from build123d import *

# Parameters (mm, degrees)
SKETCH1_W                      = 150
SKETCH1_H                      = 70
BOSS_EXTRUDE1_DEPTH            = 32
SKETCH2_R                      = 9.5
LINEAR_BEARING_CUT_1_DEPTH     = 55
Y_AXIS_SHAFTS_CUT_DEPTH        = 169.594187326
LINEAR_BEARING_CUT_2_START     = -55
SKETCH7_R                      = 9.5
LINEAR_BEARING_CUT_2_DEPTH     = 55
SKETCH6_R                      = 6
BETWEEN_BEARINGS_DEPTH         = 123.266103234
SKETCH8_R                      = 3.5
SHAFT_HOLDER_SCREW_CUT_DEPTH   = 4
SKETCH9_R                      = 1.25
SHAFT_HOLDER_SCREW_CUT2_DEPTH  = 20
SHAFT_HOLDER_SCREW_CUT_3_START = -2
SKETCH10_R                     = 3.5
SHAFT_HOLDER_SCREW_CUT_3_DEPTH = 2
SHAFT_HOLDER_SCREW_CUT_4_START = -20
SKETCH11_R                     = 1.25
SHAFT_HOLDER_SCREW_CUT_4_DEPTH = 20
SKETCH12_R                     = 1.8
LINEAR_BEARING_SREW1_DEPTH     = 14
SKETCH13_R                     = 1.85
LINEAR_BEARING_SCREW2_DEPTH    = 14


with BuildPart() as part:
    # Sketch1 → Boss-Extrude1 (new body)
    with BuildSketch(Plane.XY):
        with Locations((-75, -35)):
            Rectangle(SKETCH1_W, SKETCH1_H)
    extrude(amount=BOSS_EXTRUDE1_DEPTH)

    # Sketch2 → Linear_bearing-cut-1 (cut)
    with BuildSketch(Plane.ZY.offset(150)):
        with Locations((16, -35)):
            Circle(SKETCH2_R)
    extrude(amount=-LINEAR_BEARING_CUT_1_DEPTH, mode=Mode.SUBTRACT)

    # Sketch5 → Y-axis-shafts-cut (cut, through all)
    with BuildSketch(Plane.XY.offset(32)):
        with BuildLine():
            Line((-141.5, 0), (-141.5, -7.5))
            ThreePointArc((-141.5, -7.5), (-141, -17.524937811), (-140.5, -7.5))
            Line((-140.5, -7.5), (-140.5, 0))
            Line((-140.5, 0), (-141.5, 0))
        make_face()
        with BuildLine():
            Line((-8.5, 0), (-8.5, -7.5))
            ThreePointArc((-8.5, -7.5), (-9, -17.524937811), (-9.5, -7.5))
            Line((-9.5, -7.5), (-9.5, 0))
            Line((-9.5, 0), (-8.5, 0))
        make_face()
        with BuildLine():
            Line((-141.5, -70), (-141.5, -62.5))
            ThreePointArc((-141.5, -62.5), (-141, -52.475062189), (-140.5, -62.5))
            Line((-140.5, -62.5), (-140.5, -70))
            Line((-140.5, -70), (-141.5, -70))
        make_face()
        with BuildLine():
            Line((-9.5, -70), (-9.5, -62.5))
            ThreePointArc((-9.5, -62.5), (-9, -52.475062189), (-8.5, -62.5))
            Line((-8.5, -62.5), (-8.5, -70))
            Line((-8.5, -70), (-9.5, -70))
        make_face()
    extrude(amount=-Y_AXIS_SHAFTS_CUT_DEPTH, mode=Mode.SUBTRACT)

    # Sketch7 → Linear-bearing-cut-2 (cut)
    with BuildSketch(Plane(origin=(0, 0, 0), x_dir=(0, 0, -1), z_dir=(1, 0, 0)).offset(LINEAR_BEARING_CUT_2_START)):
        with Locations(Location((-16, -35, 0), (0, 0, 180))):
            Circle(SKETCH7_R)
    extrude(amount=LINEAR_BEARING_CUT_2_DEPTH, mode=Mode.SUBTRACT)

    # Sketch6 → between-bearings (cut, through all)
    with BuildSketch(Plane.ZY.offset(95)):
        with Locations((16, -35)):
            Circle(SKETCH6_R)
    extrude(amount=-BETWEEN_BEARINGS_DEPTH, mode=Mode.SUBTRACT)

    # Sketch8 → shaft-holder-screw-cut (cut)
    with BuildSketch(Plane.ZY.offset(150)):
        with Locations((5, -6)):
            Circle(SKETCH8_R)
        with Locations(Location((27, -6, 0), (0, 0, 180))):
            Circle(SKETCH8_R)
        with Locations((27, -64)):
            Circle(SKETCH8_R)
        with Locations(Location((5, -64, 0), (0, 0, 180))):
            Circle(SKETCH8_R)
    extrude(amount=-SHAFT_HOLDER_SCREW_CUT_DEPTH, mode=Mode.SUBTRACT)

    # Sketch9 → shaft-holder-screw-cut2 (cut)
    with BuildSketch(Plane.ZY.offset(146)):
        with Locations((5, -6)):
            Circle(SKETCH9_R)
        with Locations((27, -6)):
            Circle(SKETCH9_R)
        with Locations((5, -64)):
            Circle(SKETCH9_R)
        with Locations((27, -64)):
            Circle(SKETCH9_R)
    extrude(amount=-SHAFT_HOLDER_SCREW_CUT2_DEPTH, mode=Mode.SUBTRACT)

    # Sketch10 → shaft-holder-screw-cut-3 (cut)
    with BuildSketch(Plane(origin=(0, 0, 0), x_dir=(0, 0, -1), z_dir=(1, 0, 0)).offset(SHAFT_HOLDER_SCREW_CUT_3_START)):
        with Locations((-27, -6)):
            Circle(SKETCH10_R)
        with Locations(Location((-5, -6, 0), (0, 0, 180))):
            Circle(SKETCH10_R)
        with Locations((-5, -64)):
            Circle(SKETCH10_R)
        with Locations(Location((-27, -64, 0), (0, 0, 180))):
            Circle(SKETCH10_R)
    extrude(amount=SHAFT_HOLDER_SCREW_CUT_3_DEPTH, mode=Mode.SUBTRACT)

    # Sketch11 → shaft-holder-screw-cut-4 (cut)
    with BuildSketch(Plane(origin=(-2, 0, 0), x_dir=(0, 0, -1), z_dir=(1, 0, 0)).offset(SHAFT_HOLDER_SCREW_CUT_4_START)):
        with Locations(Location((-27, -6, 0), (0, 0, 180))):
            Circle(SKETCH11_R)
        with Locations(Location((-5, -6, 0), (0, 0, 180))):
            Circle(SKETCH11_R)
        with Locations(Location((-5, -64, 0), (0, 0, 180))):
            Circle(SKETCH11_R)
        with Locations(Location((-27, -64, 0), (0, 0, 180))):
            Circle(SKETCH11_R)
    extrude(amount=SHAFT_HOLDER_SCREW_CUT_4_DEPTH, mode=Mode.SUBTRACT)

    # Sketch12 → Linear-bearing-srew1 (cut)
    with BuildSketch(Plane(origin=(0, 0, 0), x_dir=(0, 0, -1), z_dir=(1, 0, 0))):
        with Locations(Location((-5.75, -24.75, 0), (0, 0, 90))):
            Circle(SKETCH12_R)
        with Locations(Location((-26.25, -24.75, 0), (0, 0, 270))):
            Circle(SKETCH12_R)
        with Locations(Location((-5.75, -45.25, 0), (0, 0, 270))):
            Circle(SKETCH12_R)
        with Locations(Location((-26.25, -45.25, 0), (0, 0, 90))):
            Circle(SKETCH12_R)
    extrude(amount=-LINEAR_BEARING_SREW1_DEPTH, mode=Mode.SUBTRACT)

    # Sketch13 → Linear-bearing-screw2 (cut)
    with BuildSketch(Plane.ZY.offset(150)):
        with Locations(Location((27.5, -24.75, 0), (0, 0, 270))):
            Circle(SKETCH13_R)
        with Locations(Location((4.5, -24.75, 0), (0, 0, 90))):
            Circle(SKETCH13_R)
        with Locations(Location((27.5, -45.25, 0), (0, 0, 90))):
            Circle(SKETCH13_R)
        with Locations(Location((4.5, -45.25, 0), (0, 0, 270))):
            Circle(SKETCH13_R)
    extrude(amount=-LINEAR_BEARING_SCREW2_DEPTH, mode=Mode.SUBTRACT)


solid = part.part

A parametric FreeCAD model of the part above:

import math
import FreeCAD as App
import Part
import Sketcher
Q = App.Units.Quantity

doc = App.newDocument("Part")
body = doc.addObject("PartDesign::Body", "Body")

# Sketch on XY plane
sketch1 = body.newObject("Sketcher::SketchObject", "Sketch")
sketch1.AttachmentSupport = (doc.getObject("XY_Plane"), [""])
sketch1.MapMode = "FlatFace"
sketch1.addGeometry([
    Part.LineSegment(App.Vector(-150, 0, 0), App.Vector(-150, -70, 0)),
    Part.LineSegment(App.Vector(-150, -70, 0), App.Vector(0, -70, 0)),
    Part.LineSegment(App.Vector(0, -70, 0), App.Vector(0, 0, 0)),
    Part.LineSegment(App.Vector(0, 0, 0), App.Vector(-150, 0, 0)),
], False)
sketch1.addConstraint([
    Sketcher.Constraint("Coincident", 0, 2, 1, 1),
    Sketcher.Constraint("Coincident", 1, 2, 2, 1),
    Sketcher.Constraint("Coincident", 2, 2, 3, 1),
    Sketcher.Constraint("Coincident", 3, 2, 0, 1),
    Sketcher.Constraint("Vertical", 0),
    Sketcher.Constraint("Horizontal", 1),
    Sketcher.Constraint("Vertical", 2),
    Sketcher.Constraint("Horizontal", 3),
    Sketcher.Constraint("Coincident", 2, 2, -1, 1),
    Sketcher.Constraint("DistanceX", 1, 1, 1, 2, Q("150 mm")),
    Sketcher.Constraint("DistanceY", 0, 2, 0, 1, Q("70 mm")),
])
pad1 = body.newObject("PartDesign::Pad", "Pad")
pad1.Profile = sketch1
pad1.Length = 32

# Sketch on YZ plane
sketch2 = body.newObject("Sketcher::SketchObject", "Sketch001")
sketch2.AttachmentSupport = (doc.getObject("YZ_Plane"), [""])
sketch2.MapMode = "FlatFace"
sketch2.AttachmentOffset = App.Placement(App.Vector(0, 0, -150), App.Rotation())
sketch2.addGeometry(Part.Circle(App.Vector(-35, 16, 0), App.Vector(0, 0, 1), 10), False)
sketch2.addConstraint([
    Sketcher.Constraint("Diameter", 0, Q("19 mm")),
    Sketcher.Constraint("DistanceX", 0, 3, -1, 1, Q("35 mm")),
    Sketcher.Constraint("DistanceY", -1, 1, 0, 3, Q("16 mm")),
])
pocket1 = body.newObject("PartDesign::Pocket", "Pocket")
pocket1.Profile = sketch2
pocket1.Length = 55
pocket1.Reversed = True

# Sketch on XY plane
sketch3 = body.newObject("Sketcher::SketchObject", "Sketch002")
sketch3.AttachmentSupport = (doc.getObject("XY_Plane"), [""])
sketch3.MapMode = "FlatFace"
sketch3.AttachmentOffset = App.Placement(App.Vector(0, 0, 32), App.Rotation())
sketch3.addGeometry([
    Part.LineSegment(App.Vector(-141.5, 0, 0), App.Vector(-141.5, -7.5, 0)),  # 0
    Part.ArcOfCircle(Part.Circle(App.Vector(-141, -12.5, 0), App.Vector(0, 0, 1), 5), math.radians(96), math.radians(444)),  # 1
    Part.LineSegment(App.Vector(-140.5, -7.5, 0), App.Vector(-140.5, 0, 0)),  # 2
    Part.LineSegment(App.Vector(-140.5, 0, 0), App.Vector(-141.5, 0, 0)),  # 3
    Part.LineSegment(App.Vector(-8.5, -7.5, 0), App.Vector(-8.5, 0, 0)),  # 4
    Part.LineSegment(App.Vector(-8.5, 0, 0), App.Vector(-9.5, 0, 0)),  # 5
    Part.LineSegment(App.Vector(-9.5, 0, 0), App.Vector(-9.5, -7.5, 0)),  # 6
    Part.ArcOfCircle(Part.Circle(App.Vector(-9, -12.5, 0), App.Vector(0, 0, 1), 5), math.radians(96), math.radians(444)),  # 7
    Part.LineSegment(App.Vector(-141.5, -62.5, 0), App.Vector(-141.5, -70, 0)),  # 8
    Part.LineSegment(App.Vector(-141.5, -70, 0), App.Vector(-140.5, -70, 0)),  # 9
    Part.LineSegment(App.Vector(-140.5, -70, 0), App.Vector(-140.5, -62.5, 0)),  # 10
    Part.ArcOfCircle(Part.Circle(App.Vector(-141, -57.5, 0), App.Vector(0, 0, 1), 5), math.radians(-84), math.radians(264)),  # 11
    Part.LineSegment(App.Vector(-9.5, -62.5, 0), App.Vector(-9.5, -70, 0)),  # 12
    Part.LineSegment(App.Vector(-9.5, -70, 0), App.Vector(-8.5, -70, 0)),  # 13
    Part.LineSegment(App.Vector(-8.5, -70, 0), App.Vector(-8.5, -62.5, 0)),  # 14
    Part.ArcOfCircle(Part.Circle(App.Vector(-9, -57.5, 0), App.Vector(0, 0, 1), 5), math.radians(-84), math.radians(264)),  # 15
], False)
sketch3.addConstraint([
    Sketcher.Constraint("Coincident", 0, 2, 1, 1),
    Sketcher.Constraint("Coincident", 1, 2, 2, 1),
    Sketcher.Constraint("Coincident", 2, 2, 3, 1),
    Sketcher.Constraint("Coincident", 3, 2, 0, 1),
    Sketcher.Constraint("Coincident", 4, 2, 5, 1),
    Sketcher.Constraint("Coincident", 5, 2, 6, 1),
    Sketcher.Constraint("Coincident", 6, 2, 7, 1),
    Sketcher.Constraint("Coincident", 7, 2, 4, 1),
    Sketcher.Constraint("Coincident", 8, 2, 9, 1),
    Sketcher.Constraint("Coincident", 9, 2, 10, 1),
    Sketcher.Constraint("Coincident", 10, 2, 11, 1),
    Sketcher.Constraint("Coincident", 11, 2, 8, 1),
    Sketcher.Constraint("Coincident", 12, 2, 13, 1),
    Sketcher.Constraint("Coincident", 13, 2, 14, 1),
    Sketcher.Constraint("Coincident", 14, 2, 15, 1),
    Sketcher.Constraint("Coincident", 15, 2, 12, 1),
    Sketcher.Constraint("Vertical", 0),
    Sketcher.Constraint("Vertical", 2),
    Sketcher.Constraint("Horizontal", 3),
    Sketcher.Constraint("Vertical", 4),
    Sketcher.Constraint("Horizontal", 5),
    Sketcher.Constraint("Vertical", 6),
    Sketcher.Constraint("Vertical", 8),
    Sketcher.Constraint("Horizontal", 9),
    Sketcher.Constraint("Vertical", 10),
    Sketcher.Constraint("Vertical", 12),
    Sketcher.Constraint("Horizontal", 13),
    Sketcher.Constraint("Vertical", 14),
    Sketcher.Constraint("Equal", 1, 7),
    Sketcher.Constraint("Equal", 7, 11),
    Sketcher.Constraint("Equal", 11, 15),
    Sketcher.Constraint("PointOnObject", 2, 2, -1),
    Sketcher.Constraint("PointOnObject", 4, 2, -1),
    Sketcher.Constraint("Horizontal", 1, 3, 7, 3),
    Sketcher.Constraint("Horizontal", 11, 3, 15, 3),
    Sketcher.Constraint("Horizontal", 0, 2, 1, 2),
    Sketcher.Constraint("Horizontal", 1, 2, 6, 2),
    Sketcher.Constraint("Horizontal", 6, 2, 7, 2),
    Sketcher.Constraint("Horizontal", 10, 2, 11, 2),
    Sketcher.Constraint("Horizontal", 9, 2, 12, 2),
    Sketcher.Constraint("Horizontal", 11, 2, 14, 2),
    Sketcher.Constraint("Horizontal", 14, 2, 15, 2),
    Sketcher.Constraint("Vertical", 1, 3, 11, 3),
    Sketcher.Constraint("Vertical", 7, 3, 15, 3),
    Sketcher.Constraint("Vertical", 3, 2, 8, 2),
    Sketcher.Constraint("Equal", 6, 8),
    Sketcher.Constraint("DistanceX", 3, 2, 3, 1, Q("1 mm")),
    Sketcher.Constraint("DistanceY", 0, 2, 0, 1, Q("7.5 mm")),
    Sketcher.Constraint("DistanceX", 1, 3, -1, 1, Q("141 mm")),
    Sketcher.Constraint("DistanceX", 7, 3, -1, 1, Q("9 mm")),
    Sketcher.Constraint("DistanceY", 8, 2, -1, 1, Q("70 mm")),
    Sketcher.Constraint("DistanceY", 11, 3, 1, 3, Q("45 mm")),
])
pocket2 = body.newObject("PartDesign::Pocket", "Pocket001")
pocket2.Profile = sketch3
pocket2.Type = "ThroughAll"

# Sketch on YZ plane
sketch4 = body.newObject("Sketcher::SketchObject", "Sketch003")
sketch4.AttachmentSupport = (doc.getObject("YZ_Plane"), [""])
sketch4.MapMode = "FlatFace"
sketch4.AttachmentOffset = App.Placement(App.Vector(0, 0, -55), App.Rotation())
sketch4.addGeometry(Part.Circle(App.Vector(-35, 16, 0), App.Vector(0, 0, 1), 10), False)
sketch4.addConstraint([
    Sketcher.Constraint("Diameter", 0, Q("19 mm")),
    Sketcher.Constraint("DistanceX", 0, 3, -1, 1, Q("35 mm")),
    Sketcher.Constraint("DistanceY", -1, 1, 0, 3, Q("16 mm")),
])
pocket3 = body.newObject("PartDesign::Pocket", "Pocket002")
pocket3.Profile = sketch4
pocket3.Length = 55
pocket3.Reversed = True

# Sketch on YZ plane
sketch5 = body.newObject("Sketcher::SketchObject", "Sketch004")
sketch5.AttachmentSupport = (doc.getObject("YZ_Plane"), [""])
sketch5.MapMode = "FlatFace"
sketch5.AttachmentOffset = App.Placement(App.Vector(0, 0, -95), App.Rotation())
sketch5.addGeometry(Part.Circle(App.Vector(-35, 16, 0), App.Vector(0, 0, 1), 6), False)
sketch5.addConstraint([
    Sketcher.Constraint("Diameter", 0, Q("12 mm")),
    Sketcher.Constraint("DistanceX", 0, 3, -1, 1, Q("35 mm")),
    Sketcher.Constraint("DistanceY", -1, 1, 0, 3, Q("16 mm")),
])
pocket4 = body.newObject("PartDesign::Pocket", "Pocket003")
pocket4.Profile = sketch5
pocket4.Type = "ThroughAll"
pocket4.Reversed = True

# Sketch on YZ plane
sketch6 = body.newObject("Sketcher::SketchObject", "Sketch005")
sketch6.AttachmentSupport = (doc.getObject("YZ_Plane"), [""])
sketch6.MapMode = "FlatFace"
sketch6.AttachmentOffset = App.Placement(App.Vector(0, 0, -150), App.Rotation())
sketch6.addGeometry([
    Part.Circle(App.Vector(-6, 5, 0), App.Vector(0, 0, 1), 3.5),
    Part.Circle(App.Vector(-6, 27, 0), App.Vector(0, 0, 1), 3.5),
    Part.Circle(App.Vector(-64, 27, 0), App.Vector(0, 0, 1), 3.5),
    Part.Circle(App.Vector(-64, 5, 0), App.Vector(0, 0, 1), 3.5),
], False)
sketch6.addConstraint([
    Sketcher.Constraint("Equal", 0, 1),
    Sketcher.Constraint("Equal", 1, 2),
    Sketcher.Constraint("Equal", 2, 3),
    Sketcher.Constraint("Horizontal", 1, 3, 2, 3),
    Sketcher.Constraint("Horizontal", 0, 3, 3, 3),
    Sketcher.Constraint("Vertical", 0, 3, 1, 3),
    Sketcher.Constraint("Vertical", 2, 3, 3, 3),
    Sketcher.Constraint("Diameter", 0, Q("7 mm")),
    Sketcher.Constraint("DistanceX", 0, 3, -1, 1, Q("6 mm")),
    Sketcher.Constraint("DistanceY", -1, 1, 0, 3, Q("5 mm")),
    Sketcher.Constraint("DistanceY", -1, 1, 1, 3, Q("27 mm")),
    Sketcher.Constraint("DistanceX", 2, 3, -1, 1, Q("64 mm")),
])
pocket5 = body.newObject("PartDesign::Pocket", "Pocket004")
pocket5.Profile = sketch6
pocket5.Length = 4
pocket5.Reversed = True

# Sketch on YZ plane
sketch7 = body.newObject("Sketcher::SketchObject", "Sketch006")
sketch7.AttachmentSupport = (doc.getObject("YZ_Plane"), [""])
sketch7.MapMode = "FlatFace"
sketch7.AttachmentOffset = App.Placement(App.Vector(0, 0, -146), App.Rotation())
sketch7.addGeometry([
    Part.Circle(App.Vector(-6, 5, 0), App.Vector(0, 0, 1), 1.2),
    Part.Circle(App.Vector(-6, 27, 0), App.Vector(0, 0, 1), 1.2),
    Part.Circle(App.Vector(-64, 5, 0), App.Vector(0, 0, 1), 1.2),
    Part.Circle(App.Vector(-64, 27, 0), App.Vector(0, 0, 1), 1.2),
], False)
sketch7.addConstraint([
    Sketcher.Constraint("Equal", 0, 1),
    Sketcher.Constraint("Equal", 1, 2),
    Sketcher.Constraint("Equal", 2, 3),
    Sketcher.Constraint("Horizontal", 0, 3, 2, 3),
    Sketcher.Constraint("Horizontal", 1, 3, 3, 3),
    Sketcher.Constraint("Vertical", 0, 3, 1, 3),
    Sketcher.Constraint("Vertical", 2, 3, 3, 3),
    Sketcher.Constraint("Diameter", 0, Q("2.5 mm")),
    Sketcher.Constraint("DistanceX", 0, 3, -1, 1, Q("6 mm")),
    Sketcher.Constraint("DistanceY", -1, 1, 0, 3, Q("5 mm")),
    Sketcher.Constraint("DistanceY", -1, 1, 1, 3, Q("27 mm")),
    Sketcher.Constraint("DistanceX", 2, 3, -1, 1, Q("64 mm")),
])
pocket6 = body.newObject("PartDesign::Pocket", "Pocket005")
pocket6.Profile = sketch7
pocket6.Length = 20
pocket6.Reversed = True

# Sketch on YZ plane
sketch8 = body.newObject("Sketcher::SketchObject", "Sketch007")
sketch8.AttachmentSupport = (doc.getObject("YZ_Plane"), [""])
sketch8.MapMode = "FlatFace"
sketch8.AttachmentOffset = App.Placement(App.Vector(0, 0, -2), App.Rotation())
sketch8.addGeometry([
    Part.Circle(App.Vector(-6, 27, 0), App.Vector(0, 0, 1), 3.5),
    Part.Circle(App.Vector(-6, 5, 0), App.Vector(0, 0, 1), 3.5),
    Part.Circle(App.Vector(-64, 5, 0), App.Vector(0, 0, 1), 3.5),
    Part.Circle(App.Vector(-64, 27, 0), App.Vector(0, 0, 1), 3.5),
], False)
sketch8.addConstraint([
    Sketcher.Constraint("Equal", 0, 1),
    Sketcher.Constraint("Equal", 1, 2),
    Sketcher.Constraint("Equal", 2, 3),
    Sketcher.Constraint("Horizontal", 1, 3, 2, 3),
    Sketcher.Constraint("Horizontal", 0, 3, 3, 3),
    Sketcher.Constraint("Vertical", 0, 3, 1, 3),
    Sketcher.Constraint("Vertical", 2, 3, 3, 3),
    Sketcher.Constraint("Diameter", 0, Q("7 mm")),
    Sketcher.Constraint("DistanceX", 0, 3, -1, 1, Q("6 mm")),
    Sketcher.Constraint("DistanceY", -1, 1, 0, 3, Q("27 mm")),
    Sketcher.Constraint("DistanceY", -1, 1, 1, 3, Q("5 mm")),
    Sketcher.Constraint("DistanceX", 2, 3, -1, 1, Q("64 mm")),
])
pocket7 = body.newObject("PartDesign::Pocket", "Pocket006")
pocket7.Profile = sketch8
pocket7.Length = 2
pocket7.Reversed = True

# Sketch on YZ plane
sketch9 = body.newObject("Sketcher::SketchObject", "Sketch008")
sketch9.AttachmentSupport = (doc.getObject("YZ_Plane"), [""])
sketch9.MapMode = "FlatFace"
sketch9.AttachmentOffset = App.Placement(App.Vector(0, 0, -22), App.Rotation())
sketch9.addGeometry([
    Part.Circle(App.Vector(-6, 27, 0), App.Vector(0, 0, 1), 1.2),
    Part.Circle(App.Vector(-6, 5, 0), App.Vector(0, 0, 1), 1.2),
    Part.Circle(App.Vector(-64, 5, 0), App.Vector(0, 0, 1), 1.2),
    Part.Circle(App.Vector(-64, 27, 0), App.Vector(0, 0, 1), 1.2),
], False)
sketch9.addConstraint([
    Sketcher.Constraint("Equal", 0, 1),
    Sketcher.Constraint("Equal", 1, 2),
    Sketcher.Constraint("Equal", 2, 3),
    Sketcher.Constraint("Horizontal", 1, 3, 2, 3),
    Sketcher.Constraint("Horizontal", 0, 3, 3, 3),
    Sketcher.Constraint("Vertical", 0, 3, 1, 3),
    Sketcher.Constraint("Vertical", 2, 3, 3, 3),
    Sketcher.Constraint("Diameter", 0, Q("2.5 mm")),
    Sketcher.Constraint("DistanceX", 0, 3, -1, 1, Q("6 mm")),
    Sketcher.Constraint("DistanceY", -1, 1, 0, 3, Q("27 mm")),
    Sketcher.Constraint("DistanceY", -1, 1, 1, 3, Q("5 mm")),
    Sketcher.Constraint("DistanceX", 2, 3, -1, 1, Q("64 mm")),
])
pocket8 = body.newObject("PartDesign::Pocket", "Pocket007")
pocket8.Profile = sketch9
pocket8.Length = 20
pocket8.Reversed = True

# Sketch on YZ plane
sketch10 = body.newObject("Sketcher::SketchObject", "Sketch009")
sketch10.AttachmentSupport = (doc.getObject("YZ_Plane"), [""])
sketch10.MapMode = "FlatFace"
sketch10.addGeometry([
    Part.Circle(App.Vector(-24.8, 5.8, 0), App.Vector(0, 0, 1), 1.8),
    Part.Circle(App.Vector(-24.8, 26.2, 0), App.Vector(0, 0, 1), 1.8),
    Part.Circle(App.Vector(-45.2, 5.8, 0), App.Vector(0, 0, 1), 1.8),
    Part.Circle(App.Vector(-45.2, 26.2, 0), App.Vector(0, 0, 1), 1.8),
], False)
sketch10.addConstraint([
    Sketcher.Constraint("Equal", 0, 1),
    Sketcher.Constraint("Equal", 1, 2),
    Sketcher.Constraint("Equal", 2, 3),
    Sketcher.Constraint("Horizontal", 0, 3, 2, 3),
    Sketcher.Constraint("Horizontal", 1, 3, 3, 3),
    Sketcher.Constraint("Vertical", 0, 3, 1, 3),
    Sketcher.Constraint("Vertical", 2, 3, 3, 3),
    Sketcher.Constraint("Diameter", 0, Q("3.6 mm")),
    Sketcher.Constraint("DistanceY", 0, 3, 1, 3, Q("20.5 mm")),
    Sketcher.Constraint("DistanceX", 2, 3, 0, 3, Q("20.5 mm")),
    Sketcher.Constraint("DistanceX", 0, 3, -1, 1, Q("24.75 mm")),
    Sketcher.Constraint("DistanceY", -1, 1, 0, 3, Q("5.75 mm")),
])
pocket9 = body.newObject("PartDesign::Pocket", "Pocket008")
pocket9.Profile = sketch10
pocket9.Length = 14

# Sketch on YZ plane
sketch11 = body.newObject("Sketcher::SketchObject", "Sketch010")
sketch11.AttachmentSupport = (doc.getObject("YZ_Plane"), [""])
sketch11.MapMode = "FlatFace"
sketch11.AttachmentOffset = App.Placement(App.Vector(0, 0, -150), App.Rotation())
sketch11.addGeometry([
    Part.Circle(App.Vector(-24.8, 27.5, 0), App.Vector(0, 0, 1), 1.9),
    Part.Circle(App.Vector(-24.8, 4.5, 0), App.Vector(0, 0, 1), 1.9),
    Part.Circle(App.Vector(-45.2, 27.5, 0), App.Vector(0, 0, 1), 1.9),
    Part.Circle(App.Vector(-45.2, 4.5, 0), App.Vector(0, 0, 1), 1.9),
], False)
sketch11.addConstraint([
    Sketcher.Constraint("Equal", 0, 1),
    Sketcher.Constraint("Equal", 1, 2),
    Sketcher.Constraint("Equal", 2, 3),
    Sketcher.Constraint("Horizontal", 0, 3, 2, 3),
    Sketcher.Constraint("Horizontal", 1, 3, 3, 3),
    Sketcher.Constraint("Vertical", 0, 3, 1, 3),
    Sketcher.Constraint("Vertical", 2, 3, 3, 3),
    Sketcher.Constraint("Diameter", 0, Q("3.7 mm")),
    Sketcher.Constraint("DistanceY", 1, 3, 0, 3, Q("23 mm")),
    Sketcher.Constraint("DistanceY", -1, 1, 0, 3, Q("27.5 mm")),
    Sketcher.Constraint("DistanceX", 2, 3, 0, 3, Q("20.5 mm")),
    Sketcher.Constraint("DistanceX", 0, 3, -1, 1, Q("24.75 mm")),
])
pocket10 = body.newObject("PartDesign::Pocket", "Pocket009")
pocket10.Profile = sketch11
pocket10.Length = 14
pocket10.Reversed = True

doc.recompute()
